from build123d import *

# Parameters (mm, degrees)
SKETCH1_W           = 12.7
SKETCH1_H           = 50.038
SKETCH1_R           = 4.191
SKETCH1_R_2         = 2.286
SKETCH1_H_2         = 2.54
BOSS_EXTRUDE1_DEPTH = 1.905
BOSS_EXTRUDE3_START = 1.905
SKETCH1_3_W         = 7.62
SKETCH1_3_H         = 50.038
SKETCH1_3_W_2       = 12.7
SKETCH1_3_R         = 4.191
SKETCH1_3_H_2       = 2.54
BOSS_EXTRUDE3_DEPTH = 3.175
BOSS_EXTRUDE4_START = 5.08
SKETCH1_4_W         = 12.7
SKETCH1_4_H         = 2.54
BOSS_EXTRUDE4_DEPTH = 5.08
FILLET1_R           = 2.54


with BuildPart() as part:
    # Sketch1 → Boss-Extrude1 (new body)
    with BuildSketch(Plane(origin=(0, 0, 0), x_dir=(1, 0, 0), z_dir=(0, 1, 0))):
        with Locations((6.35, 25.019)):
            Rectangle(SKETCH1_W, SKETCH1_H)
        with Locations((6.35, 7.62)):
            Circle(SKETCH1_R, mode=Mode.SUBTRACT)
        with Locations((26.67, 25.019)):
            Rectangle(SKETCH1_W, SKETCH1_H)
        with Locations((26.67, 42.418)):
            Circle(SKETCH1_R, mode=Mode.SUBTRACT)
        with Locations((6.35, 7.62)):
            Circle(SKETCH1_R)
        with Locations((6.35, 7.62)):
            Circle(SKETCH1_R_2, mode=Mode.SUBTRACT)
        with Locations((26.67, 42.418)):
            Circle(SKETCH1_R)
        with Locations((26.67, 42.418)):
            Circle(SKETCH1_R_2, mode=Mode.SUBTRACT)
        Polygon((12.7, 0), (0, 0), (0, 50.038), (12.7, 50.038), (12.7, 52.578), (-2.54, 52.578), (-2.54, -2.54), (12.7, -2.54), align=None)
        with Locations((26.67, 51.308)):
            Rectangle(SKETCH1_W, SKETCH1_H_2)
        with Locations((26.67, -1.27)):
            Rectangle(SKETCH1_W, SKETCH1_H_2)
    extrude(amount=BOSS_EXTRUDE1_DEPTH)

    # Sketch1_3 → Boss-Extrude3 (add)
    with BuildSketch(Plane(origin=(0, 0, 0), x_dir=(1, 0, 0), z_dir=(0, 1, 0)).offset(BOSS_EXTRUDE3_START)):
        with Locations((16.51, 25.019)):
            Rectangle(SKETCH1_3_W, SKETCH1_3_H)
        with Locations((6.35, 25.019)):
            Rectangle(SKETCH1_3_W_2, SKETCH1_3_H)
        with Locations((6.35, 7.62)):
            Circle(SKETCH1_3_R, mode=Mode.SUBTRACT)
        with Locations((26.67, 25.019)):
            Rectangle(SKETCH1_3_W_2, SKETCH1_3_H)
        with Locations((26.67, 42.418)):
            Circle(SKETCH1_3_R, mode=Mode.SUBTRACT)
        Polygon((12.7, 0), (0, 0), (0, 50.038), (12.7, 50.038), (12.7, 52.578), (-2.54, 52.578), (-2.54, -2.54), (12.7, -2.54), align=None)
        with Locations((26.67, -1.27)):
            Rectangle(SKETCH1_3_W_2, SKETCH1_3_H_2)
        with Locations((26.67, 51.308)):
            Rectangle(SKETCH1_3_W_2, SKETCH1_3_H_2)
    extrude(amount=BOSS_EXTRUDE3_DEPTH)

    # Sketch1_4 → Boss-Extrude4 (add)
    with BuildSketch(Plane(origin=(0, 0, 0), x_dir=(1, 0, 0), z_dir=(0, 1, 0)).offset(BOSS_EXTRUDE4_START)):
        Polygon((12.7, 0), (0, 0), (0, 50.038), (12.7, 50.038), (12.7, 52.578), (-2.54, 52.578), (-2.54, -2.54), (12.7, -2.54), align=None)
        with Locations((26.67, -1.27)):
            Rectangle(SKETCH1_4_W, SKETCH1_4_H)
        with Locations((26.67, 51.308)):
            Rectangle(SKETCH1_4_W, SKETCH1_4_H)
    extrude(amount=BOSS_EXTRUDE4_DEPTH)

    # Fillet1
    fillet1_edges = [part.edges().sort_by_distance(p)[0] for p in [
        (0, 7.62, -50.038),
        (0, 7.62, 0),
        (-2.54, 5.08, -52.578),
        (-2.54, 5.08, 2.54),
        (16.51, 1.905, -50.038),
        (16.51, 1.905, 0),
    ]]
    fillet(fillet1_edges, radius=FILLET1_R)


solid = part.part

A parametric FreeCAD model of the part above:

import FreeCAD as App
import Part
import Sketcher
from FreeCAD import Vector
Q = App.Units.Quantity


def edges_at(feature, points):
    """Names of the edges that pass closest to the given points."""
    edges = feature.Shape.Edges
    near = lambda p: min(range(len(edges)), key=lambda i: edges[i].distToShape(Part.Vertex(*p))[0])
    return sorted({f"Edge{near(p) + 1}" for p in points})


def add_polygon(sketch, points):
    """Adds a closed chain of lines whose ends are joined by coincident constraints."""
    first, n = sketch.GeometryCount, len(points)
    for a, b in zip(points, points[1:] + points[:1]):
        sketch.addGeometry(Part.LineSegment(App.Vector(*a, 0), App.Vector(*b, 0)), False)
    for i in range(n):
        sketch.addConstraint(Sketcher.Constraint("Coincident", first + i, 2, first + (i + 1) % n, 1))

doc = App.newDocument("Part")
body = doc.addObject("PartDesign::Body", "Body")
body.AllowCompound = True

# Sketch on XZ plane
sketch1 = body.newObject("Sketcher::SketchObject", "Sketch")
sketch1.AttachmentSupport = (doc.getObject("XZ_Plane"), [""])
sketch1.MapMode = "FlatFace"
add_polygon(sketch1, [(12.7, -52.6), (-2.5, -52.6), (-2.5, 2.5), (12.7, 2.5)])  # lines 0-3
sketch1.addGeometry(Part.Circle(Vector(6.3, -7.6, 0), Vector(0, 0, 1), 2.3), False)  # 4
add_polygon(sketch1, [(33, -52.6), (20.3, -52.6), (20.3, 2.5), (33, 2.5)])  # lines 5-8
sketch1.addGeometry(Part.Circle(Vector(26.7, -42.4, 0), Vector(0, 0, 1), 2.3), False)  # 9
sketch1.addConstraint(Sketcher.Constraint("Horizontal", 0))
sketch1.addConstraint(Sketcher.Constraint("Vertical", 1))
sketch1.addConstraint(Sketcher.Constraint("Horizontal", 2))
sketch1.addConstraint(Sketcher.Constraint("Vertical", 3))
sketch1.addConstraint(Sketcher.Constraint("Horizontal", 5))
sketch1.addConstraint(Sketcher.Constraint("Vertical", 6))
sketch1.addConstraint(Sketcher.Constraint("Horizontal", 7))
sketch1.addConstraint(Sketcher.Constraint("Vertical", 8))
sketch1.addConstraint(Sketcher.Constraint("Equal", 4, 9))
sketch1.addConstraint(Sketcher.Constraint("Horizontal", 3, 2, 5, 2))
sketch1.addConstraint(Sketcher.Constraint("Horizontal", 2, 2, 6, 2))
sketch1.addConstraint(Sketcher.Constraint("Diameter", 4, Q("0.18 in")))
sketch1.addConstraint(Sketcher.Constraint("DistanceX", 0, 2, 0, 1, Q("0.6 in")))
sketch1.addConstraint(Sketcher.Constraint("DistanceX", 5, 2, 5, 1, Q("0.5 in")))
sketch1.addConstraint(Sketcher.Constraint("DistanceY", 1, 1, 1, 2, Q("2.17 in")))
sketch1.addConstraint(Sketcher.Constraint("DistanceY", 4, 3, -1, 1, Q("0.3 in")))
sketch1.addConstraint(Sketcher.Constraint("DistanceX", 0, 2, -1, 1, Q("0.1 in")))
sketch1.addConstraint(Sketcher.Constraint("DistanceY", -1, 1, 1, 2, Q("0.1 in")))
sketch1.addConstraint(Sketcher.Constraint("DistanceX", -1, 1, 5, 2, Q("0.8 in")))
sketch1.addConstraint(Sketcher.Constraint("DistanceX", 4, 3, 9, 3, Q("0.8 in")))
sketch1.addConstraint(Sketcher.Constraint("DistanceY", 0, 2, 9, 3, Q("0.4 in")))
sketch1.addConstraint(Sketcher.Constraint("DistanceX", -1, 1, 4, 3, Q("0.25 in")))
pad1 = body.newObject("PartDesign::Pad", "Pad")
pad1.Profile = sketch1
pad1.Length = Q("0.075 in")
pad1.Reversed = True

# Sketch on XZ plane
sketch2 = body.newObject("Sketcher::SketchObject", "Sketch001")
sketch2.AttachmentSupport = (doc.getObject("XZ_Plane"), [""])
sketch2.MapMode = "FlatFace"
sketch2.AttachmentOffset = App.Placement(Vector(0, 0, -0.075 * 25.4), App.Rotation())
add_polygon(sketch2, [(12.7, 0), (20.3, 0), (20.3, 2.5), (33, 2.5), (33, -52.6), (20.3, -52.6), (20.3, -50), (12.7, -50), (12.7, -52.6), (-2.5, -52.6), (-2.5, 2.5), (12.7, 2.5)])  # lines 0-11
sketch2.addGeometry(Part.Circle(Vector(6.3, -7.6, 0), Vector(0, 0, 1), 4.2), False)  # 12
sketch2.addGeometry(Part.Circle(Vector(26.7, -42.4, 0), Vector(0, 0, 1), 4.2), False)  # 13
sketch2.addConstraint(Sketcher.Constraint("Horizontal", 0))
sketch2.addConstraint(Sketcher.Constraint("Vertical", 1))
sketch2.addConstraint(Sketcher.Constraint("Horizontal", 2))
sketch2.addConstraint(Sketcher.Constraint("Vertical", 3))
sketch2.addConstraint(Sketcher.Constraint("Horizontal", 4))
sketch2.addConstraint(Sketcher.Constraint("Vertical", 5))
sketch2.addConstraint(Sketcher.Constraint("Horizontal", 6))
sketch2.addConstraint(Sketcher.Constraint("Vertical", 7))
sketch2.addConstraint(Sketcher.Constraint("Horizontal", 8))
sketch2.addConstraint(Sketcher.Constraint("Vertical", 9))
sketch2.addConstraint(Sketcher.Constraint("Horizontal", 10))
sketch2.addConstraint(Sketcher.Constraint("Vertical", 11))
sketch2.addConstraint(Sketcher.Constraint("Equal", 12, 13))
sketch2.addConstraint(Sketcher.Constraint("PointOnObject", 0, 2, -1))
sketch2.addConstraint(Sketcher.Constraint("Horizontal", 4, 2, 7, 2))
sketch2.addConstraint(Sketcher.Constraint("Horizontal", 2, 2, 9, 2))
sketch2.addConstraint(Sketcher.Constraint("Vertical", 1, 2, 4, 2))
sketch2.addConstraint(Sketcher.Constraint("Vertical", 7, 2, 10, 2))
sketch2.addConstraint(Sketcher.Constraint("Equal", 1, 5))
sketch2.addConstraint(Sketcher.Constraint("Diameter", 12, Q("0.33 in")))
sketch2.addConstraint(Sketcher.Constraint("DistanceX", 0, 1, 0, 2, Q("0.3 in")))
sketch2.addConstraint(Sketcher.Constraint("DistanceX", 2, 1, 2, 2, Q("0.5 in")))
sketch2.addConstraint(Sketcher.Constraint("DistanceX", 8, 2, 8, 1, Q("0.6 in")))
sketch2.addConstraint(Sketcher.Constraint("DistanceY", 1, 1, 1, 2, Q("0.1 in")))
sketch2.addConstraint(Sketcher.Constraint("DistanceY", 3, 2, 3, 1, Q("2.17 in")))
sketch2.addConstraint(Sketcher.Constraint("DistanceY", 12, 3, -1, 1, Q("0.3 in")))
sketch2.addConstraint(Sketcher.Constraint("DistanceX", -1, 1, 0, 2, Q("0.8 in")))
sketch2.addConstraint(Sketcher.Constraint("DistanceX", 12, 3, 13, 3, Q("0.8 in")))
sketch2.addConstraint(Sketcher.Constraint("DistanceY", 3, 2, 13, 3, Q("0.4 in")))
sketch2.addConstraint(Sketcher.Constraint("DistanceX", -1, 1, 12, 3, Q("0.25 in")))
pad2 = body.newObject("PartDesign::Pad", "Pad001")
pad2.Profile = sketch2
pad2.Length = Q("0.125 in")
pad2.Reversed = True

# Sketch on XZ plane
sketch3 = body.newObject("Sketcher::SketchObject", "Sketch002")
sketch3.AttachmentSupport = (doc.getObject("XZ_Plane"), [""])
sketch3.MapMode = "FlatFace"
sketch3.AttachmentOffset = App.Placement(Vector(0, 0, -0.2 * 25.4), App.Rotation())
add_polygon(sketch3, [(12.7, 0), (0, 0), (0, -50), (12.7, -50), (12.7, -52.6), (-2.5, -52.6), (-2.5, 2.5), (12.7, 2.5)])  # lines 0-7
add_polygon(sketch3, [(20.3, 0), (20.3, 2.5), (33, 2.5), (33, 0)])  # lines 8-11
add_polygon(sketch3, [(20.3, -52.6), (20.3, -50), (33, -50), (33, -52.6)])  # lines 12-15
sketch3.addConstraint(Sketcher.Constraint("Horizontal", 0))
sketch3.addConstraint(Sketcher.Constraint("Vertical", 1))
sketch3.addConstraint(Sketcher.Constraint("Horizontal", 2))
sketch3.addConstraint(Sketcher.Constraint("Vertical", 3))
sketch3.addConstraint(Sketcher.Constraint("Horizontal", 4))
sketch3.addConstraint(Sketcher.Constraint("Vertical", 5))
sketch3.addConstraint(Sketcher.Constraint("Horizontal", 6))
sketch3.addConstraint(Sketcher.Constraint("Vertical", 7))
sketch3.addConstraint(Sketcher.Constraint("Vertical", 8))
sketch3.addConstraint(Sketcher.Constraint("Horizontal", 9))
sketch3.addConstraint(Sketcher.Constraint("Vertical", 10))
sketch3.addConstraint(Sketcher.Constraint("Horizontal", 11))
sketch3.addConstraint(Sketcher.Constraint("Vertical", 12))
sketch3.addConstraint(Sketcher.Constraint("Horizontal", 13))
sketch3.addConstraint(Sketcher.Constraint("Vertical", 14))
sketch3.addConstraint(Sketcher.Constraint("Horizontal", 15))
sketch3.addConstraint(Sketcher.Constraint("Coincident", 0, 2, -1, 1))
sketch3.addConstraint(Sketcher.Constraint("PointOnObject", 10, 2, -1))
sketch3.addConstraint(Sketcher.Constraint("Horizontal", 6, 2, 8, 2))
sketch3.addConstraint(Sketcher.Constraint("Horizontal", 2, 2, 12, 2))
sketch3.addConstraint(Sketcher.Constraint("Horizontal", 4, 2, 14, 2))
sketch3.addConstraint(Sketcher.Constraint("Vertical", 3, 2, 6, 2))
sketch3.addConstraint(Sketcher.Constraint("Vertical", 11, 2, 12, 2))
sketch3.addConstraint(Sketcher.Constraint("Vertical", 10, 2, 13, 2))
sketch3.addConstraint(Sketcher.Constraint("Equal", 2, 9))
sketch3.addConstraint(Sketcher.Constraint("Equal", 3, 7))
sketch3.addConstraint(Sketcher.Constraint("DistanceX", 0, 2, 0, 1, Q("0.5 in")))
sketch3.addConstraint(Sketcher.Constraint("DistanceX", 4, 2, 4, 1, Q("0.6 in")))
sketch3.addConstraint(Sketcher.Constraint("DistanceY", 3, 2, 3, 1, Q("0.1 in")))
sketch3.addConstraint(Sketcher.Constraint("DistanceY", 1, 2, 1, 1, Q("1.97 in")))
sketch3.addConstraint(Sketcher.Constraint("DistanceX", -1, 1, 8, 2, Q("0.8 in")))
pad3 = body.newObject("PartDesign::Pad", "Pad002")
pad3.Profile = sketch3
pad3.Length = Q("0.2 in")
pad3.Reversed = True
doc.recompute()

fillet = body.newObject("PartDesign::Fillet", "Fillet")
fillet.Base = (pad3, edges_at(pad3, [
    (0, 7.62, -50.038),
    (0, 7.62, 0),
    (-2.54, 5.08, -52.578),
    (-2.54, 5.08, 2.54),
    (16.51, 1.905, -50.038),
    (16.51, 1.905, 0),
]))
fillet.Radius = Q("0.1 in")

doc.recompute()
